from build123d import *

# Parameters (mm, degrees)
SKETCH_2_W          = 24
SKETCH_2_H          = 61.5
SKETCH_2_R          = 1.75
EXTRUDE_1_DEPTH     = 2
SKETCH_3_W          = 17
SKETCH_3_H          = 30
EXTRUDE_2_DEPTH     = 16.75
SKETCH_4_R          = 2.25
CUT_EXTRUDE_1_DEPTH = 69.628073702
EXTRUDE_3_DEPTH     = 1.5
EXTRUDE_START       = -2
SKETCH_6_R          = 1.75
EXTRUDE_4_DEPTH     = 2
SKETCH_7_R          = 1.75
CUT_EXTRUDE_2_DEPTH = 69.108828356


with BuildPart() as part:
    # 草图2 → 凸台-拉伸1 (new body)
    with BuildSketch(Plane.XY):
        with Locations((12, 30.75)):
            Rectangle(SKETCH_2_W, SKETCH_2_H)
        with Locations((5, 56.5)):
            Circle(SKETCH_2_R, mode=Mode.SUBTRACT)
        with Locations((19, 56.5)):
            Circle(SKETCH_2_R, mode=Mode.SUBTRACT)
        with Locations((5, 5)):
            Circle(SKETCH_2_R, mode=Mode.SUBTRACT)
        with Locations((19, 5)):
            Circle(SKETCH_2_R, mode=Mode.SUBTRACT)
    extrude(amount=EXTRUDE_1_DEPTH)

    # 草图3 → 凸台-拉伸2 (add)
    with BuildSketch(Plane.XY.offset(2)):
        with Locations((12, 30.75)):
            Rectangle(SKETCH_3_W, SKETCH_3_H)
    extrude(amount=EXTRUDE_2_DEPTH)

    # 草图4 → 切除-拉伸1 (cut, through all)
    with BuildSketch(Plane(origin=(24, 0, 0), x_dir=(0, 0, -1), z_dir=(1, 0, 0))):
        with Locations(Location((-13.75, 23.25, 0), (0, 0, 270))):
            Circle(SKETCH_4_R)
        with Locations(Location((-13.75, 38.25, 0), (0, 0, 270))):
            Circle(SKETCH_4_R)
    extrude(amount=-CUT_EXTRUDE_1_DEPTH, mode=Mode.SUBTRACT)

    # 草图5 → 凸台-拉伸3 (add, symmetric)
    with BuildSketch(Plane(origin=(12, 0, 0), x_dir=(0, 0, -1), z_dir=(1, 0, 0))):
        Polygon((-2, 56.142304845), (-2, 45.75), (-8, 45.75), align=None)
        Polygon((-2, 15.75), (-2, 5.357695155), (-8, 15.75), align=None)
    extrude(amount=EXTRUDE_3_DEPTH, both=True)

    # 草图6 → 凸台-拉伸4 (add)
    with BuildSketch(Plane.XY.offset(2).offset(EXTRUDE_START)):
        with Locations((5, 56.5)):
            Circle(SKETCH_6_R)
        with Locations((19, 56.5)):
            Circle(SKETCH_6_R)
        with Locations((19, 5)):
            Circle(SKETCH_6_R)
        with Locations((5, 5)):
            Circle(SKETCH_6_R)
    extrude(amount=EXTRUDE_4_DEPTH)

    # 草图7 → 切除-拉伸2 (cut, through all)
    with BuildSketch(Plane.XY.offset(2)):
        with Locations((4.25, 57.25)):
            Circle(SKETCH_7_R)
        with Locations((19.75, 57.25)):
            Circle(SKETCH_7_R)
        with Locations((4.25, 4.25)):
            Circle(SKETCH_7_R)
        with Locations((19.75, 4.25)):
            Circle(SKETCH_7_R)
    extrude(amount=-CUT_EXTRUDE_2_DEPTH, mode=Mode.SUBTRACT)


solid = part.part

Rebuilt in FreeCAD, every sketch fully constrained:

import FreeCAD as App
import Part
import Sketcher
from FreeCAD import Vector
Q = App.Units.Quantity


def add_polygon(sketch, points):
    """Adds a closed chain of lines whose ends are joined by coincident constraints."""
    first, n = sketch.GeometryCount, len(points)
    for a, b in zip(points, points[1:] + points[:1]):
        sketch.addGeometry(Part.LineSegment(App.Vector(*a, 0), App.Vector(*b, 0)), False)
    for i in range(n):
        sketch.addConstraint(Sketcher.Constraint("Coincident", first + i, 2, first + (i + 1) % n, 1))

doc = App.newDocument("Part")
body = doc.addObject("PartDesign::Body", "Body")

# Sketch on XY plane
sketch1 = body.newObject("Sketcher::SketchObject", "Sketch")
sketch1.AttachmentSupport = (doc.getObject("XY_Plane"), [""])
sketch1.MapMode = "FlatFace"
add_polygon(sketch1, [(0, 61.5), (0, 0), (24, 0), (24, 61.5)])  # lines 0-3
sketch1.addGeometry(Part.Circle(Vector(5, 5, 0), Vector(0, 0, 1), 1.75), False)  # 4
sketch1.addGeometry(Part.Circle(Vector(19, 5, 0), Vector(0, 0, 1), 1.75), False)  # 5
sketch1.addGeometry(Part.Circle(Vector(5, 56.5, 0), Vector(0, 0, 1), 1.75), False)  # 6
sketch1.addGeometry(Part.Circle(Vector(19, 56.5, 0), Vector(0, 0, 1), 1.75), False)  # 7
sketch1.addConstraint(Sketcher.Constraint("Vertical", 0))
sketch1.addConstraint(Sketcher.Constraint("Horizontal", 1))
sketch1.addConstraint(Sketcher.Constraint("Vertical", 2))
sketch1.addConstraint(Sketcher.Constraint("Horizontal", 3))
sketch1.addConstraint(Sketcher.Constraint("Coincident", 0, 2, -1, 1))
sketch1.addConstraint(Sketcher.Constraint("Equal", 4, 5))
sketch1.addConstraint(Sketcher.Constraint("Equal", 5, 6))
sketch1.addConstraint(Sketcher.Constraint("Equal", 6, 7))
sketch1.addConstraint(Sketcher.Constraint("Horizontal", 4, 3, 5, 3))
sketch1.addConstraint(Sketcher.Constraint("Horizontal", 6, 3, 7, 3))
sketch1.addConstraint(Sketcher.Constraint("Vertical", 4, 3, 6, 3))
sketch1.addConstraint(Sketcher.Constraint("Vertical", 5, 3, 7, 3))
sketch1.addConstraint(Sketcher.Constraint("Diameter", 4, Q("3.5 mm")))
sketch1.addConstraint(Sketcher.Constraint("DistanceX", 1, 1, 1, 2, Q("24 mm")))
sketch1.addConstraint(Sketcher.Constraint("DistanceY", 0, 2, 0, 1, Q("61.5 mm")))
sketch1.addConstraint(Sketcher.Constraint("DistanceX", -1, 1, 4, 3, Q("5 mm")))
sketch1.addConstraint(Sketcher.Constraint("DistanceY", -1, 1, 4, 3, Q("5 mm")))
sketch1.addConstraint(Sketcher.Constraint("DistanceX", -1, 1, 5, 3, Q("19 mm")))
sketch1.addConstraint(Sketcher.Constraint("DistanceY", 7, 3, 2, 2, Q("5 mm")))
pad1 = body.newObject("PartDesign::Pad", "Pad")
pad1.Profile = sketch1
pad1.Length = 2

# Sketch on XY plane
sketch2 = body.newObject("Sketcher::SketchObject", "Sketch001")
sketch2.AttachmentSupport = (doc.getObject("XY_Plane"), [""])
sketch2.MapMode = "FlatFace"
sketch2.AttachmentOffset = App.Placement(Vector(0, 0, 2), App.Rotation())
add_polygon(sketch2, [(3.5, 45.75), (3.5, 15.75), (20.5, 15.75), (20.5, 45.75)])  # lines 0-3
sketch2.addConstraint(Sketcher.Constraint("Vertical", 0))
sketch2.addConstraint(Sketcher.Constraint("Horizontal", 1))
sketch2.addConstraint(Sketcher.Constraint("Vertical", 2))
sketch2.addConstraint(Sketcher.Constraint("Horizontal", 3))
sketch2.addConstraint(Sketcher.Constraint("DistanceX", 1, 1, 1, 2, Q("17 mm")))
sketch2.addConstraint(Sketcher.Constraint("DistanceY", 0, 2, 0, 1, Q("30 mm")))
sketch2.addConstraint(Sketcher.Constraint("DistanceX", -1, 1, 0, 2, Q("3.5 mm")))
sketch2.addConstraint(Sketcher.Constraint("DistanceY", -1, 1, 0, 2, Q("15.75 mm")))
pad2 = body.newObject("PartDesign::Pad", "Pad001")
pad2.Profile = sketch2
pad2.Length = 16.75

# Sketch on YZ plane
sketch3 = body.newObject("Sketcher::SketchObject", "Sketch002")
sketch3.AttachmentSupport = (doc.getObject("YZ_Plane"), [""])
sketch3.MapMode = "FlatFace"
sketch3.AttachmentOffset = App.Placement(Vector(0, 0, 24), App.Rotation())
sketch3.addGeometry(Part.Circle(Vector(23.25, 13.75, 0), Vector(0, 0, 1), 2.25), False)
sketch3.addGeometry(Part.Circle(Vector(38.25, 13.75, 0), Vector(0, 0, 1), 2.25), False)
sketch3.addConstraint(Sketcher.Constraint("Equal", 0, 1))
sketch3.addConstraint(Sketcher.Constraint("Horizontal", 0, 3, 1, 3))
sketch3.addConstraint(Sketcher.Constraint("Diameter", 0, Q("4.5 mm")))
sketch3.addConstraint(Sketcher.Constraint("DistanceX", 0, 3, 1, 3, Q("15 mm")))
sketch3.addConstraint(Sketcher.Constraint("DistanceX", -1, 1, 0, 3, Q("23.25 mm")))
sketch3.addConstraint(Sketcher.Constraint("DistanceY", -1, 1, 0, 3, Q("13.75 mm")))
pocket1 = body.newObject("PartDesign::Pocket", "Pocket")
pocket1.Profile = sketch3
pocket1.Type = "ThroughAll"

# Sketch on YZ plane
sketch4 = body.newObject("Sketcher::SketchObject", "Sketch003")
sketch4.AttachmentSupport = (doc.getObject("YZ_Plane"), [""])
sketch4.MapMode = "FlatFace"
sketch4.AttachmentOffset = App.Placement(Vector(0, 0, 12), App.Rotation())
add_polygon(sketch4, [(45.75, 2), (56.142305, 2), (45.75, 8)])  # lines 0-2
add_polygon(sketch4, [(5.357695, 2), (15.75, 2), (15.75, 8)])  # lines 3-5
sketch4.addConstraint(Sketcher.Constraint("Horizontal", 0))
sketch4.addConstraint(Sketcher.Constraint("Vertical", 2))
sketch4.addConstraint(Sketcher.Constraint("Horizontal", 3))
sketch4.addConstraint(Sketcher.Constraint("Vertical", 4))
sketch4.addConstraint(Sketcher.Constraint("Horizontal", 2, 2, 3, 2))
sketch4.addConstraint(Sketcher.Constraint("Horizontal", 1, 2, 4, 2))
sketch4.addConstraint(Sketcher.Constraint("Equal", 0, 3))
sketch4.addConstraint(Sketcher.Constraint("DistanceY", 2, 2, 2, 1, Q("6 mm")))
sketch4.addConstraint(Sketcher.Constraint("Angle", 1, Q("150 deg")))
sketch4.addConstraint(Sketcher.Constraint("DistanceY", -1, 1, 0, 2, Q("2 mm")))
sketch4.addConstraint(Sketcher.Constraint("DistanceX", 3, 2, 2, 2, Q("30 mm")))
sketch4.addConstraint(Sketcher.Constraint("DistanceX", -1, 1, 1, 2, Q("45.75 mm")))
pad3 = body.newObject("PartDesign::Pad", "Pad002")
pad3.Profile = sketch4
pad3.Length = 3
pad3.Midplane = True

# Sketch on XY plane
sketch5 = body.newObject("Sketcher::SketchObject", "Sketch004")
sketch5.AttachmentSupport = (doc.getObject("XY_Plane"), [""])
sketch5.MapMode = "FlatFace"
sketch5.addGeometry(Part.Circle(Vector(5, 56.5, 0), Vector(0, 0, 1), 1.75), False)
sketch5.addGeometry(Part.Circle(Vector(19, 56.5, 0), Vector(0, 0, 1), 1.75), False)
sketch5.addGeometry(Part.Circle(Vector(19, 5, 0), Vector(0, 0, 1), 1.75), False)
sketch5.addGeometry(Part.Circle(Vector(5, 5, 0), Vector(0, 0, 1), 1.75), False)
sketch5.addConstraint(Sketcher.Constraint("Equal", 0, 1))
sketch5.addConstraint(Sketcher.Constraint("Equal", 1, 2))
sketch5.addConstraint(Sketcher.Constraint("Equal", 2, 3))
sketch5.addConstraint(Sketcher.Constraint("Horizontal", 0, 3, 1, 3))
sketch5.addConstraint(Sketcher.Constraint("Horizontal", 2, 3, 3, 3))
sketch5.addConstraint(Sketcher.Constraint("Vertical", 1, 3, 2, 3))
sketch5.addConstraint(Sketcher.Constraint("Vertical", 0, 3, 3, 3))
sketch5.addConstraint(Sketcher.Constraint("Diameter", 0, Q("3.5 mm")))
sketch5.addConstraint(Sketcher.Constraint("DistanceX", -1, 1, 0, 3, Q("5 mm")))
sketch5.addConstraint(Sketcher.Constraint("DistanceX", -1, 1, 1, 3, Q("19 mm")))
sketch5.addConstraint(Sketcher.Constraint("DistanceY", -1, 1, 2, 3, Q("5 mm")))
sketch5.addConstraint(Sketcher.Constraint("DistanceY", -1, 1, 0, 3, Q("56.5 mm")))
pad4 = body.newObject("PartDesign::Pad", "Pad003")
pad4.Profile = sketch5
pad4.Length = 2

# Sketch on XY plane
sketch6 = body.newObject("Sketcher::SketchObject", "Sketch005")
sketch6.AttachmentSupport = (doc.getObject("XY_Plane"), [""])
sketch6.MapMode = "FlatFace"
sketch6.AttachmentOffset = App.Placement(Vector(0, 0, 2), App.Rotation())
sketch6.addGeometry(Part.Circle(Vector(4.25, 57.25, 0), Vector(0, 0, 1), 1.75), False)
sketch6.addGeometry(Part.Circle(Vector(19.75, 57.25, 0), Vector(0, 0, 1), 1.75), False)
sketch6.addGeometry(Part.Circle(Vector(4.25, 4.25, 0), Vector(0, 0, 1), 1.75), False)
sketch6.addGeometry(Part.Circle(Vector(19.75, 4.25, 0), Vector(0, 0, 1), 1.75), False)
sketch6.addConstraint(Sketcher.Constraint("Equal", 0, 1))
sketch6.addConstraint(Sketcher.Constraint("Equal", 1, 2))
sketch6.addConstraint(Sketcher.Constraint("Equal", 2, 3))
sketch6.addConstraint(Sketcher.Constraint("Horizontal", 0, 3, 1, 3))
sketch6.addConstraint(Sketcher.Constraint("Horizontal", 2, 3, 3, 3))
sketch6.addConstraint(Sketcher.Constraint("Vertical", 0, 3, 2, 3))
sketch6.addConstraint(Sketcher.Constraint("Vertical", 1, 3, 3, 3))
sketch6.addConstraint(Sketcher.Constraint("Diameter", 0, Q("3.5 mm")))
sketch6.addConstraint(Sketcher.Constraint("DistanceY", 2, 3, 0, 3, Q("53 mm")))
sketch6.addConstraint(Sketcher.Constraint("DistanceX", 0, 3, 1, 3, Q("15.5 mm")))
sketch6.addConstraint(Sketcher.Constraint("DistanceX", -1, 1, 0, 3, Q("4.25 mm")))
sketch6.addConstraint(Sketcher.Constraint("DistanceY", -1, 1, 0, 3, Q("57.25 mm")))
pocket2 = body.newObject("PartDesign::Pocket", "Pocket001")
pocket2.Profile = sketch6
pocket2.Type = "ThroughAll"

doc.recompute()
